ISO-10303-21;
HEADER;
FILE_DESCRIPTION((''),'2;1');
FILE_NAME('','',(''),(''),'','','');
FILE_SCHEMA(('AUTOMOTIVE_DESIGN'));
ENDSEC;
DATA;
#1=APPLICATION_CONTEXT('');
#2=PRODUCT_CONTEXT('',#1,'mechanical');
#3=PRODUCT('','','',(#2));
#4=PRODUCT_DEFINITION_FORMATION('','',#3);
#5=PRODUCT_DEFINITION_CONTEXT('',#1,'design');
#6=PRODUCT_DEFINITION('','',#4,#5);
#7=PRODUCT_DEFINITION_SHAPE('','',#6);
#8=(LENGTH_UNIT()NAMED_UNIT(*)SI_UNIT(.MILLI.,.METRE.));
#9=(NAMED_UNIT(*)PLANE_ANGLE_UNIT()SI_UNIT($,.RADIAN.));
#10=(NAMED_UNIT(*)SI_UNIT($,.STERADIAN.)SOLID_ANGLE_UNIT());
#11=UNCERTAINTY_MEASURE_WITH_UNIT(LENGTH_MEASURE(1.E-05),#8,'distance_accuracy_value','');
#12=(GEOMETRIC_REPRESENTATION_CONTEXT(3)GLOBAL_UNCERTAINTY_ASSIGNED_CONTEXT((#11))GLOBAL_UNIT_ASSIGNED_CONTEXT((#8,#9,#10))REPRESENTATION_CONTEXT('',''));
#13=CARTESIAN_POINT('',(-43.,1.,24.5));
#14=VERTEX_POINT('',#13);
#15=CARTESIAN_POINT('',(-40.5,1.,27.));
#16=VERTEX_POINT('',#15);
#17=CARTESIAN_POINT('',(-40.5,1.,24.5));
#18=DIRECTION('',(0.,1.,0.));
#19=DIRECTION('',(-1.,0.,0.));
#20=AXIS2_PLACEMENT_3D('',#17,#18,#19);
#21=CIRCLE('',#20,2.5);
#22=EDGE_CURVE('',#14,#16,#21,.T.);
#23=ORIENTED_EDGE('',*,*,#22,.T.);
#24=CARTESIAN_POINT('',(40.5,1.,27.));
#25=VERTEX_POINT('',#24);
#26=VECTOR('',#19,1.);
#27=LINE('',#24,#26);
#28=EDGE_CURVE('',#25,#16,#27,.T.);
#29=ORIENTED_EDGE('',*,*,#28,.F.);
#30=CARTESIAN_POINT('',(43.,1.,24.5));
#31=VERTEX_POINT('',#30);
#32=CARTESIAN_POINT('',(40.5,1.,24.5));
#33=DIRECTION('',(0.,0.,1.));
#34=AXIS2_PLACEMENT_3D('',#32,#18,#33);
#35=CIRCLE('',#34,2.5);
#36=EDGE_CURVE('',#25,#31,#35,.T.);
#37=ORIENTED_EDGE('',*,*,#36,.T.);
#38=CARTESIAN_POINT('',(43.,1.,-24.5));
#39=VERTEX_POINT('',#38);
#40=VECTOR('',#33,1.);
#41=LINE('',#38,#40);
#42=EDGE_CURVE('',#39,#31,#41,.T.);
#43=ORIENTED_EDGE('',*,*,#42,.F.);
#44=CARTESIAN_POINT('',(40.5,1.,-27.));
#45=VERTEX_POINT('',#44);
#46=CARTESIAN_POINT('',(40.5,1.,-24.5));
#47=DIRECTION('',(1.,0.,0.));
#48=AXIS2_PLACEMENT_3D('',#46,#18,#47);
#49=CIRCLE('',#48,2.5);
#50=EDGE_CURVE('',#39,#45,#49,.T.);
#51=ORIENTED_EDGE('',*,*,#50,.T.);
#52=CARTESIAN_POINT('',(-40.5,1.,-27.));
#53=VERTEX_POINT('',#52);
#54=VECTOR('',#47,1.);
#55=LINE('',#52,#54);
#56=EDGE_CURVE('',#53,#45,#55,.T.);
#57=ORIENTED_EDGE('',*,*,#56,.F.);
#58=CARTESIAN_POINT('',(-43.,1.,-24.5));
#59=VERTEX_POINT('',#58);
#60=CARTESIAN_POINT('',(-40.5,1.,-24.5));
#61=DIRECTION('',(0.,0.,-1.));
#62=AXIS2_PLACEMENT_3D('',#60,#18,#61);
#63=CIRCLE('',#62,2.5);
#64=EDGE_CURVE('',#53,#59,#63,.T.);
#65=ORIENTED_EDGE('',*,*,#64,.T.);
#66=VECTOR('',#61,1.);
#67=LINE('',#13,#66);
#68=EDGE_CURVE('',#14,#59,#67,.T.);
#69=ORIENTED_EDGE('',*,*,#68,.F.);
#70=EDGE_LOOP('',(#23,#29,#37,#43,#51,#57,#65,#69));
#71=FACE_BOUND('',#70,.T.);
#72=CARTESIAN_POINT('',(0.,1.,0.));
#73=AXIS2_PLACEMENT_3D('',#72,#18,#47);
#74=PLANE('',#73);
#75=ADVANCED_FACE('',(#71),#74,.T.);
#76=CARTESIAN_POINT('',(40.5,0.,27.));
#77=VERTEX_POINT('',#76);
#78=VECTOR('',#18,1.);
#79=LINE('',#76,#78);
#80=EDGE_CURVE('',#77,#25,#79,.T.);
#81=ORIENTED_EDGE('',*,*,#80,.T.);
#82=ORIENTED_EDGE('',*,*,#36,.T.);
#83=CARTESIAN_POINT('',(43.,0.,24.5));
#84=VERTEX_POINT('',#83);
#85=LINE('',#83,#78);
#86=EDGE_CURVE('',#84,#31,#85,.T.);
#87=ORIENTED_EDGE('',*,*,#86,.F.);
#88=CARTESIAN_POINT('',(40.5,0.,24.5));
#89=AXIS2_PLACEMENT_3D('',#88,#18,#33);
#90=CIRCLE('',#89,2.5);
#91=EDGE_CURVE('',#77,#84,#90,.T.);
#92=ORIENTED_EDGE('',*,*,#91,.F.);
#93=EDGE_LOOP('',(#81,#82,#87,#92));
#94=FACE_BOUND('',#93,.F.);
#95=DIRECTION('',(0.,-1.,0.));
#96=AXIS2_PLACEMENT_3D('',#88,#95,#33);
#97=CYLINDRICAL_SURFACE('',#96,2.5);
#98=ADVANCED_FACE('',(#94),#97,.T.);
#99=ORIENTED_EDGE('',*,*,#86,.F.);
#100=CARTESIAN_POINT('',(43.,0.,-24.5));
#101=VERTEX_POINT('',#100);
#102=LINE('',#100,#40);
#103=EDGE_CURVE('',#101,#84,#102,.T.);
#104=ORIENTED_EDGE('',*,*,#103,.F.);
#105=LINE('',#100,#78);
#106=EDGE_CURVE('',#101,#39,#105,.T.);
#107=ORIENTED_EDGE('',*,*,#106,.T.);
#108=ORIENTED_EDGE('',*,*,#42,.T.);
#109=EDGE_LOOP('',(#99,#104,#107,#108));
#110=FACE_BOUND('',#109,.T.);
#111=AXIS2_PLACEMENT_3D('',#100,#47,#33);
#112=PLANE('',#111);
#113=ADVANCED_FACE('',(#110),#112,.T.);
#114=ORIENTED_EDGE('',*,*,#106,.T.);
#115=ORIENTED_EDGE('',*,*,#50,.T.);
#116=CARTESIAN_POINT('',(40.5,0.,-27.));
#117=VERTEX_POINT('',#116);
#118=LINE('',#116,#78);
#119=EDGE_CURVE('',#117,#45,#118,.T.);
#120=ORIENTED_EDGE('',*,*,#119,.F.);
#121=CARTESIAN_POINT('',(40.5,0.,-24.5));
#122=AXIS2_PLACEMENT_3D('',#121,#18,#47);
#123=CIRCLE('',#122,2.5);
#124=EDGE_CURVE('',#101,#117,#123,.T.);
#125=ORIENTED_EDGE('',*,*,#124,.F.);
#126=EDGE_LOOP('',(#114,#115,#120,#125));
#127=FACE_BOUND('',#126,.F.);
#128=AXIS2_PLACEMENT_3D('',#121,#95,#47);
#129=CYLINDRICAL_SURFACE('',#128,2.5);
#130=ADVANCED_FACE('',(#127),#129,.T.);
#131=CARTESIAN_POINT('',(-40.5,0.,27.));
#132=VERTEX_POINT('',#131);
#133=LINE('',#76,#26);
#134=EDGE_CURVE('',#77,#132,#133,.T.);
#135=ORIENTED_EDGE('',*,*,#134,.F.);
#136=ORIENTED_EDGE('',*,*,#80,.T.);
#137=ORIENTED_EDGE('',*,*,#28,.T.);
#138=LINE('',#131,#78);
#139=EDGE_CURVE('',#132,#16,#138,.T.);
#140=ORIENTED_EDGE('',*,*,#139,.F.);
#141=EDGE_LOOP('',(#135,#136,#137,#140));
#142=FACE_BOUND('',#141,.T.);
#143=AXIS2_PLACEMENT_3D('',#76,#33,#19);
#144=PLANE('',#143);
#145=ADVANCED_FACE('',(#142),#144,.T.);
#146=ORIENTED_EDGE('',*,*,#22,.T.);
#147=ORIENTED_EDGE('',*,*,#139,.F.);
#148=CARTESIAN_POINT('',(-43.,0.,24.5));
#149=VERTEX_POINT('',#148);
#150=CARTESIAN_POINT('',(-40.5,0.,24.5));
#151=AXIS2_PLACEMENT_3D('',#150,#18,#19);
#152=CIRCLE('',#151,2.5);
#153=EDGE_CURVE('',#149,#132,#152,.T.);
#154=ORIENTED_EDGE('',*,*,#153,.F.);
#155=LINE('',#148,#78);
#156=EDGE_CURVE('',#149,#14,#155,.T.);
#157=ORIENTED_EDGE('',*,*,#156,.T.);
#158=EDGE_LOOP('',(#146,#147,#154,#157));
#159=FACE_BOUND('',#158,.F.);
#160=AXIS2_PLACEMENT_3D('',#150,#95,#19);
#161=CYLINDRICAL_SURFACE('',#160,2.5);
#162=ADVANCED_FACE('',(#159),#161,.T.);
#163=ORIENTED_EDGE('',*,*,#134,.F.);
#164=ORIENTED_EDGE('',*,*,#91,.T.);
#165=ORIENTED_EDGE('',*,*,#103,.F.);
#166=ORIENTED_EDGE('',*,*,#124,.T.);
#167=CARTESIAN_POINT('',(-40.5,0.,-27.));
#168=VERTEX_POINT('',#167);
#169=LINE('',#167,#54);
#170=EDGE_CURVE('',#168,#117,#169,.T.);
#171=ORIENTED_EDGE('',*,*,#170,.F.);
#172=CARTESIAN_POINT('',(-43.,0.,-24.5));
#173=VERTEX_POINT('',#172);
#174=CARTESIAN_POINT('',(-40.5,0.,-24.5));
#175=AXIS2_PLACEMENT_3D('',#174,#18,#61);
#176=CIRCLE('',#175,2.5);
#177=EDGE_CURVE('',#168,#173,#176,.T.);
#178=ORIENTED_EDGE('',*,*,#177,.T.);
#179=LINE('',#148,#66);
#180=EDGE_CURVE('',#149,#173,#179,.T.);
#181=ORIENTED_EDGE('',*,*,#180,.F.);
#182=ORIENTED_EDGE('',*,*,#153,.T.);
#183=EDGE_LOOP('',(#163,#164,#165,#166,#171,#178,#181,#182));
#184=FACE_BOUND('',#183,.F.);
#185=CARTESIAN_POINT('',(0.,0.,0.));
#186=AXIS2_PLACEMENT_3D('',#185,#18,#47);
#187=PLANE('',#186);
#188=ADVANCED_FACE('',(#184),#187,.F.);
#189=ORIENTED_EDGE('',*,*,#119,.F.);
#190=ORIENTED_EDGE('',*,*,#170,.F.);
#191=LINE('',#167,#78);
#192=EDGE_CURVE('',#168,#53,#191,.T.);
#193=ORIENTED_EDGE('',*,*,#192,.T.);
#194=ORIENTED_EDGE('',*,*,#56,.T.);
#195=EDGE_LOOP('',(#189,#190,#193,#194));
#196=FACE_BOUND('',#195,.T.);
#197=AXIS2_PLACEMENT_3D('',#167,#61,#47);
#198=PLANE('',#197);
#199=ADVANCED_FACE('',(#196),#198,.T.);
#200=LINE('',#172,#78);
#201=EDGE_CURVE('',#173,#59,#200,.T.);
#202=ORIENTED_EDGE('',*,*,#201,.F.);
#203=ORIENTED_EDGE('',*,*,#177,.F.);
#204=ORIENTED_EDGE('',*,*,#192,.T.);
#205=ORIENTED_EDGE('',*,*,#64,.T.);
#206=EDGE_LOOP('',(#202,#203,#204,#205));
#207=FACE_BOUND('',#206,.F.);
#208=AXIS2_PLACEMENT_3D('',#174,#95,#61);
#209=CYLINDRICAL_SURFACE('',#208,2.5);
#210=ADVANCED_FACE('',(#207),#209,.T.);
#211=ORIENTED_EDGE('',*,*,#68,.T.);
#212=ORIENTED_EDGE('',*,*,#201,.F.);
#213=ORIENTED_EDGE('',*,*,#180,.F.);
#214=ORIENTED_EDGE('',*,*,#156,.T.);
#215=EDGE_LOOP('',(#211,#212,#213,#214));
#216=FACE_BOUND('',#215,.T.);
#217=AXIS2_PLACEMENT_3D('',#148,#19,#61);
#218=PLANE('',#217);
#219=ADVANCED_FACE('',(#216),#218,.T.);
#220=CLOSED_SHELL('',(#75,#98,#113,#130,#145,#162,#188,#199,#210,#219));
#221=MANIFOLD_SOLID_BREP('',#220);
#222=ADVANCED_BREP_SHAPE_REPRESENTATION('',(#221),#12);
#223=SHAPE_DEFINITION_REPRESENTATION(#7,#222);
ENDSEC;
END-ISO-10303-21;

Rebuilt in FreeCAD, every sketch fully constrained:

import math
import FreeCAD as App
import Part
import Sketcher
Q = App.Units.Quantity

doc = App.newDocument("Part")
body = doc.addObject("PartDesign::Body", "Body")

sketch1 = body.newObject("Sketcher::SketchObject", "Sketch")
sketch1.AttachmentSupport = (doc.getObject("XZ_Plane"), [""])
sketch1.MapMode = "FlatFace"
sketch1.addGeometry([
    Part.LineSegment(App.Vector(-40.5, 27, 0), App.Vector(40.5, 27, 0)),
    Part.ArcOfCircle(Part.Circle(App.Vector(40.5, 24.5, 0), App.Vector(0, 0, 1), 2.5), math.radians(0), math.radians(90)),
    Part.LineSegment(App.Vector(43, 24.5, 0), App.Vector(43, -24.5, 0)),
    Part.ArcOfCircle(Part.Circle(App.Vector(40.5, -24.5, 0), App.Vector(0, 0, 1), 2.5), math.radians(-90), math.radians(0)),
    Part.LineSegment(App.Vector(40.5, -27, 0), App.Vector(-40.5, -27, 0)),
    Part.ArcOfCircle(Part.Circle(App.Vector(-40.5, -24.5, 0), App.Vector(0, 0, 1), 2.5), math.radians(180), math.radians(270)),
    Part.LineSegment(App.Vector(-43, -24.5, 0), App.Vector(-43, 24.5, 0)),
    Part.ArcOfCircle(Part.Circle(App.Vector(-40.5, 24.5, 0), App.Vector(0, 0, 1), 2.5), math.radians(90), math.radians(180)),
], False)
sketch1.addConstraint([
    Sketcher.Constraint("Tangent", 0, 2, 1, 2),
    Sketcher.Constraint("Tangent", 1, 1, 2, 1),
    Sketcher.Constraint("Tangent", 2, 2, 3, 2),
    Sketcher.Constraint("Tangent", 3, 1, 4, 1),
    Sketcher.Constraint("Tangent", 4, 2, 5, 2),
    Sketcher.Constraint("Tangent", 5, 1, 6, 1),
    Sketcher.Constraint("Tangent", 6, 2, 7, 2),
    Sketcher.Constraint("Tangent", 7, 1, 0, 1),
    Sketcher.Constraint("Horizontal", 0),
    Sketcher.Constraint("Vertical", 2),
    Sketcher.Constraint("Horizontal", 4),
    Sketcher.Constraint("Vertical", 6),
    Sketcher.Constraint("Equal", 1, 3),
    Sketcher.Constraint("Equal", 3, 5),
    Sketcher.Constraint("Equal", 5, 7),
    Sketcher.Constraint("Symmetric", 1, 3, 5, 3, -1, 1),
    Sketcher.Constraint("Radius", 1, Q("2.5 mm")),
    Sketcher.Constraint("DistanceY", 3, 1, 0, 2, Q("54 mm")),
    Sketcher.Constraint("DistanceX", 0, 1, 0, 2, Q("81 mm")),
])
pad1 = body.newObject("PartDesign::Pad", "Pad")
pad1.Profile = sketch1
pad1.Length = 1
pad1.Reversed = True

doc.recompute()
